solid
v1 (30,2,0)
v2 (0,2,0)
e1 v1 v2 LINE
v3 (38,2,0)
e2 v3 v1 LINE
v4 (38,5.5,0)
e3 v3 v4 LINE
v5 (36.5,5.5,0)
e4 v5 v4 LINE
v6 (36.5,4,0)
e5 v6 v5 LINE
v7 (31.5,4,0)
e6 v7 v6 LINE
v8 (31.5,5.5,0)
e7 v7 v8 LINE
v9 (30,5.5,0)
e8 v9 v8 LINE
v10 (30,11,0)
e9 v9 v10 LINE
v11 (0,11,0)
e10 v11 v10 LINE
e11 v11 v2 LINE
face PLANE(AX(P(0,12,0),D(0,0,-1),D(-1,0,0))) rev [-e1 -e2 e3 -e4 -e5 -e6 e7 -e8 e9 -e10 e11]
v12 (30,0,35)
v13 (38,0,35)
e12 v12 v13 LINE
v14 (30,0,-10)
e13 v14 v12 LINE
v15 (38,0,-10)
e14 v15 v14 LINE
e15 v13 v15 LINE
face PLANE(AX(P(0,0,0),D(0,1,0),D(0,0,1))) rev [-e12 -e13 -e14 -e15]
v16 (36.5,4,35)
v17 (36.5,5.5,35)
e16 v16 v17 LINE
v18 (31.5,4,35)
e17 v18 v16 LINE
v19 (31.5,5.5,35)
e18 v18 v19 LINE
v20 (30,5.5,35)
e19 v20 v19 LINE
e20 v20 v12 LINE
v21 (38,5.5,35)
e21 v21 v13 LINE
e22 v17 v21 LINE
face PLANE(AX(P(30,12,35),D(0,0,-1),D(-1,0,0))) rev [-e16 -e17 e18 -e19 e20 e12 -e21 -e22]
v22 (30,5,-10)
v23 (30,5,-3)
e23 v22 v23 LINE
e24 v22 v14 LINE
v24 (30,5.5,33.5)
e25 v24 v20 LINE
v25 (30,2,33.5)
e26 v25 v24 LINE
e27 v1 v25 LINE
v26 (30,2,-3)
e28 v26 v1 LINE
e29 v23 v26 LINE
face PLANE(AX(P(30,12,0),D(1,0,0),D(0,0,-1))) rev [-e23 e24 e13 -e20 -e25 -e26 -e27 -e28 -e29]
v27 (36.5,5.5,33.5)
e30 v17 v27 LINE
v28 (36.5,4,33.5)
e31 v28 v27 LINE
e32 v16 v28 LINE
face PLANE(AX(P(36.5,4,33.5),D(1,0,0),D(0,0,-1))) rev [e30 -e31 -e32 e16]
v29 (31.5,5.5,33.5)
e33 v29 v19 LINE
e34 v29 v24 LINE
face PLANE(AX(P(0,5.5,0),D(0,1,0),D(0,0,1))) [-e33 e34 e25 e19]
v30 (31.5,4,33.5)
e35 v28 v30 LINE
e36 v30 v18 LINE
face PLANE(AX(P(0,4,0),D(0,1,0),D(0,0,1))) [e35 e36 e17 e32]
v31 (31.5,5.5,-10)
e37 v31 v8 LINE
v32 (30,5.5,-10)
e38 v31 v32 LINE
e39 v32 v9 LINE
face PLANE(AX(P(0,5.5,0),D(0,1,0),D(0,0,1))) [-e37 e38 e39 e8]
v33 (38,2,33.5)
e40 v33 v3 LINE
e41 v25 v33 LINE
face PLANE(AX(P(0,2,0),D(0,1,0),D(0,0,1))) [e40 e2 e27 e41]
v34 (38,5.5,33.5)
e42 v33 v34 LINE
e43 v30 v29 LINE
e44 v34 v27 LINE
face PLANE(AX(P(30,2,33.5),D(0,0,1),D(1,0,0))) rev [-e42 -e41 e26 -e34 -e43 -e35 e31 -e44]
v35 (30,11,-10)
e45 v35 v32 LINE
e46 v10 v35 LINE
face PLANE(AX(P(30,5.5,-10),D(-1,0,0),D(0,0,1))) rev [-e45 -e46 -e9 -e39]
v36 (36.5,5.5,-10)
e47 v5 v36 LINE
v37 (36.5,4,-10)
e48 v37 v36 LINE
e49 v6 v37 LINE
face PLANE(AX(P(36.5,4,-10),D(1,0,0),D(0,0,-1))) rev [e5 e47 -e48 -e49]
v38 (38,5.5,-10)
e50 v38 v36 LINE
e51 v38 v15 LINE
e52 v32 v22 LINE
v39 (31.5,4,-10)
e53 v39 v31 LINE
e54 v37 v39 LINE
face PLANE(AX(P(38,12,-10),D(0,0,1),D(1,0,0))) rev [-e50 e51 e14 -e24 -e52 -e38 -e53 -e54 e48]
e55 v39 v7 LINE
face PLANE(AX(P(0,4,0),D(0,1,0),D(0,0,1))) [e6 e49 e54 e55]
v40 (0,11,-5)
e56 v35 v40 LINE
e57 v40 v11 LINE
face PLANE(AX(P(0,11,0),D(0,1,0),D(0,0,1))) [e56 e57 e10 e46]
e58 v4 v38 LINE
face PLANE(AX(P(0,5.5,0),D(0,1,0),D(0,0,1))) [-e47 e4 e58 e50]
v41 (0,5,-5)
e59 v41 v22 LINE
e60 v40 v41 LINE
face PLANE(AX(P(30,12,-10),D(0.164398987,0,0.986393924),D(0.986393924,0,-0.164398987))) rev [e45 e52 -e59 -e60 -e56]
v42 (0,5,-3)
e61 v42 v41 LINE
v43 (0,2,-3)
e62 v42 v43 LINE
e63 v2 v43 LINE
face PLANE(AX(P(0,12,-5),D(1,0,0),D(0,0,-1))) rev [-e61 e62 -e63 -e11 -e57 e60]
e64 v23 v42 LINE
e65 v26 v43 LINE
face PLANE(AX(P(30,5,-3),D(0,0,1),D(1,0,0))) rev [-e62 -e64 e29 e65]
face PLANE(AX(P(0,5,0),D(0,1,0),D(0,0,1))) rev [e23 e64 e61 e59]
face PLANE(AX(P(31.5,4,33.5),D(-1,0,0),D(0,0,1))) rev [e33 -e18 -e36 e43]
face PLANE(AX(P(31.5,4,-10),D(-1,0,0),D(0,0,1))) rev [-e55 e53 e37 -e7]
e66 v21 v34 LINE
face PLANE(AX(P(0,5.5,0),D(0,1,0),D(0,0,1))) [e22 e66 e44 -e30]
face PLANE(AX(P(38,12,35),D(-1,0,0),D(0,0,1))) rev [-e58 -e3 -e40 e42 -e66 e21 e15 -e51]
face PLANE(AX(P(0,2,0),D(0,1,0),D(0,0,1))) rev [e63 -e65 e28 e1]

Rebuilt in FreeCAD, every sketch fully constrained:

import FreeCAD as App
import Part
import Sketcher

V = App.Vector


def add_polygon(sketch, points):
    """Adds a closed chain of lines whose ends are joined by coincident constraints."""
    first, n = sketch.GeometryCount, len(points)
    for a, b in zip(points, points[1:] + points[:1]):
        sketch.addGeometry(Part.LineSegment(App.Vector(*a, 0), App.Vector(*b, 0)), False)
    for i in range(n):
        sketch.addConstraint(Sketcher.Constraint("Coincident", first + i, 2, first + (i + 1) % n, 1))

doc = App.newDocument("Part")
body = doc.addObject("PartDesign::Body", "Body")

sketch1 = body.newObject("Sketcher::SketchObject", "Sketch")
sketch1.AttachmentSupport = (doc.getObject("XZ_Plane"), [""])
sketch1.MapMode = "FlatFace"
add_polygon(sketch1, [(0, 0), (30, 0), (30, 35), (38, 35), (38, -10), (30, -10), (0, -5)])
sketch1.addConstraint([
    Sketcher.Constraint("Horizontal", 0),
    Sketcher.Constraint("Vertical", 1),
    Sketcher.Constraint("Horizontal", 2),
    Sketcher.Constraint("Vertical", 3),
    Sketcher.Constraint("Horizontal", 4),
    Sketcher.Constraint("Vertical", 6),
    Sketcher.Constraint("Coincident", 6, 2, -1, 1),
    Sketcher.Constraint("Vertical", 1, 2, 4, 2),
    Sketcher.Constraint("DistanceX", 0, 1, 0, 2, 30.0),
    Sketcher.Constraint("DistanceX", 2, 1, 2, 2, 8.0),
    Sketcher.Constraint("DistanceY", 1, 1, 1, 2, 35.0),
    Sketcher.Constraint("DistanceY", 3, 2, 3, 1, 45.0),
    Sketcher.Constraint("DistanceY", 6, 1, 6, 2, 5.0),
])
pad1 = body.newObject("PartDesign::Pad", "Pad")
pad1.Profile = sketch1
pad1.Length = 12
pad1.Reversed = True

sketch2 = body.newObject("Sketcher::SketchObject", "Sketch001")
sketch2.AttachmentSupport = (doc.getObject("XZ_Plane"), [""])
sketch2.MapMode = "FlatFace"
sketch2.AttachmentOffset = App.Placement(V(0, 0, -12), App.Rotation())
add_polygon(sketch2, [(30, 0), (30, 33.5), (38, 33.5), (38, 0)])
sketch2.addConstraint([
    Sketcher.Constraint("Vertical", 0),
    Sketcher.Constraint("Horizontal", 1),
    Sketcher.Constraint("Vertical", 2),
    Sketcher.Constraint("Horizontal", 3),
    Sketcher.Constraint("PointOnObject", 2, 2, -1),
    Sketcher.Constraint("DistanceX", 1, 1, 1, 2, 8.0),
    Sketcher.Constraint("DistanceY", 0, 1, 0, 2, 33.5),
    Sketcher.Constraint("DistanceX", -1, 1, 0, 2, 30.0),
])
pocket1 = body.newObject("PartDesign::Pocket", "Pocket")
pocket1.Profile = sketch2
pocket1.Length = 10
pocket1.Reversed = True

sketch3 = body.newObject("Sketcher::SketchObject", "Sketch002")
sketch3.AttachmentSupport = (doc.getObject("XZ_Plane"), [""])
sketch3.MapMode = "FlatFace"
sketch3.AttachmentOffset = App.Placement(V(0, 0, -12), App.Rotation())
add_polygon(sketch3, [(30, -10), (30, 35), (38, 35), (38, -10)])
sketch3.addConstraint([
    Sketcher.Constraint("Vertical", 0),
    Sketcher.Constraint("Horizontal", 1),
    Sketcher.Constraint("Vertical", 2),
    Sketcher.Constraint("Horizontal", 3),
    Sketcher.Constraint("DistanceX", 1, 1, 1, 2, 8.0),
    Sketcher.Constraint("DistanceY", 0, 1, 0, 2, 45.0),
    Sketcher.Constraint("DistanceX", -1, 1, 0, 2, 30.0),
    Sketcher.Constraint("DistanceY", -1, 1, 0, 2, 35.0),
])
pocket2 = body.newObject("PartDesign::Pocket", "Pocket001")
pocket2.Profile = sketch3
pocket2.Length = 6.5
pocket2.Reversed = True

sketch4 = body.newObject("Sketcher::SketchObject", "Sketch003")
sketch4.AttachmentSupport = (doc.getObject("XZ_Plane"), [""])
sketch4.MapMode = "FlatFace"
sketch4.AttachmentOffset = App.Placement(V(0, 0, -5.5), App.Rotation())
add_polygon(sketch4, [(31.5, -10), (31.5, 0), (36.5, 0), (36.5, -10)])
sketch4.addConstraint([
    Sketcher.Constraint("Vertical", 0),
    Sketcher.Constraint("Horizontal", 1),
    Sketcher.Constraint("Vertical", 2),
    Sketcher.Constraint("Horizontal", 3),
    Sketcher.Constraint("PointOnObject", 0, 2, -1),
    Sketcher.Constraint("DistanceX", 1, 1, 1, 2, 5.0),
    Sketcher.Constraint("DistanceY", 0, 1, 0, 2, 10.0),
    Sketcher.Constraint("DistanceX", -1, 1, 0, 2, 31.5),
])
pocket3 = body.newObject("PartDesign::Pocket", "Pocket002")
pocket3.Profile = sketch4
pocket3.Length = 1.5
pocket3.Reversed = True

sketch5 = body.newObject("Sketcher::SketchObject", "Sketch004")
sketch5.AttachmentSupport = (doc.getObject("XZ_Plane"), [""])
sketch5.MapMode = "FlatFace"
sketch5.AttachmentOffset = App.Placement(V(0, 0, -5.5), App.Rotation())
add_polygon(sketch5, [(31.5, 33.5), (31.5, 35), (36.5, 35), (36.5, 33.5)])
sketch5.addConstraint([
    Sketcher.Constraint("Vertical", 0),
    Sketcher.Constraint("Horizontal", 1),
    Sketcher.Constraint("Vertical", 2),
    Sketcher.Constraint("Horizontal", 3),
    Sketcher.Constraint("DistanceX", 1, 1, 1, 2, 5.0),
    Sketcher.Constraint("DistanceY", 0, 1, 0, 2, 1.5),
    Sketcher.Constraint("DistanceY", -1, 1, 0, 2, 35.0),
    Sketcher.Constraint("DistanceX", -1, 1, 0, 2, 31.5),
])
pocket4 = body.newObject("PartDesign::Pocket", "Pocket003")
pocket4.Profile = sketch5
pocket4.Length = 1.5
pocket4.Reversed = True

sketch6 = body.newObject("Sketcher::SketchObject", "Sketch005")
sketch6.AttachmentSupport = (doc.getObject("XZ_Plane"), [""])
sketch6.MapMode = "FlatFace"
add_polygon(sketch6, [(30, 0), (0, 0), (0, -5), (30, -10)])
sketch6.addConstraint([
    Sketcher.Constraint("Horizontal", 0),
    Sketcher.Constraint("Vertical", 1),
    Sketcher.Constraint("Vertical", 3),
    Sketcher.Constraint("Coincident", 0, 2, -1, 1),
    Sketcher.Constraint("DistanceX", 0, 2, 0, 1, 30.0),
    Sketcher.Constraint("DistanceY", 1, 2, 1, 1, 5.0),
    Sketcher.Constraint("DistanceY", 3, 1, 3, 2, 10.0),
])
pocket5 = body.newObject("PartDesign::Pocket", "Pocket004")
pocket5.Profile = sketch6
pocket5.Length = 2

sketch7 = body.newObject("Sketcher::SketchObject", "Sketch006")
sketch7.AttachmentSupport = (doc.getObject("XZ_Plane"), [""])
sketch7.MapMode = "FlatFace"
sketch7.AttachmentOffset = App.Placement(V(0, 0, -12), App.Rotation())
add_polygon(sketch7, [(30, -10), (0, -5), (0, 0), (30, 0)])
sketch7.addConstraint([
    Sketcher.Constraint("Vertical", 1),
    Sketcher.Constraint("Horizontal", 2),
    Sketcher.Constraint("Vertical", 3),
    Sketcher.Constraint("Coincident", 1, 2, -1, 1),
    Sketcher.Constraint("DistanceX", 2, 1, 2, 2, 30.0),
    Sketcher.Constraint("DistanceY", 1, 1, 1, 2, 5.0),
    Sketcher.Constraint("DistanceY", 3, 2, 3, 1, 10.0),
])
pocket6 = body.newObject("PartDesign::Pocket", "Pocket005")
pocket6.Profile = sketch7
pocket6.Length = 1
pocket6.Reversed = True

sketch8 = body.newObject("Sketcher::SketchObject", "Sketch007")
sketch8.AttachmentSupport = (doc.getObject("XZ_Plane"), [""])
sketch8.MapMode = "FlatFace"
sketch8.AttachmentOffset = App.Placement(V(0, 0, -2), App.Rotation())
add_polygon(sketch8, [(0, -5), (30, -10), (30, -3), (0, -3)])
sketch8.addConstraint([
    Sketcher.Constraint("Vertical", 1),
    Sketcher.Constraint("Horizontal", 2),
    Sketcher.Constraint("Vertical", 3),
    Sketcher.Constraint("PointOnObject", 2, 2, -2),
    Sketcher.Constraint("DistanceX", 2, 2, 2, 1, 30.0),
    Sketcher.Constraint("DistanceY", 1, 1, 1, 2, 7.0),
    Sketcher.Constraint("DistanceY", 3, 2, 3, 1, 2.0),
    Sketcher.Constraint("DistanceY", 0, 2, -1, 1, 10.0),
])
pocket7 = body.newObject("PartDesign::Pocket", "Pocket006")
pocket7.Profile = sketch8
pocket7.Length = 3

doc.recompute()
